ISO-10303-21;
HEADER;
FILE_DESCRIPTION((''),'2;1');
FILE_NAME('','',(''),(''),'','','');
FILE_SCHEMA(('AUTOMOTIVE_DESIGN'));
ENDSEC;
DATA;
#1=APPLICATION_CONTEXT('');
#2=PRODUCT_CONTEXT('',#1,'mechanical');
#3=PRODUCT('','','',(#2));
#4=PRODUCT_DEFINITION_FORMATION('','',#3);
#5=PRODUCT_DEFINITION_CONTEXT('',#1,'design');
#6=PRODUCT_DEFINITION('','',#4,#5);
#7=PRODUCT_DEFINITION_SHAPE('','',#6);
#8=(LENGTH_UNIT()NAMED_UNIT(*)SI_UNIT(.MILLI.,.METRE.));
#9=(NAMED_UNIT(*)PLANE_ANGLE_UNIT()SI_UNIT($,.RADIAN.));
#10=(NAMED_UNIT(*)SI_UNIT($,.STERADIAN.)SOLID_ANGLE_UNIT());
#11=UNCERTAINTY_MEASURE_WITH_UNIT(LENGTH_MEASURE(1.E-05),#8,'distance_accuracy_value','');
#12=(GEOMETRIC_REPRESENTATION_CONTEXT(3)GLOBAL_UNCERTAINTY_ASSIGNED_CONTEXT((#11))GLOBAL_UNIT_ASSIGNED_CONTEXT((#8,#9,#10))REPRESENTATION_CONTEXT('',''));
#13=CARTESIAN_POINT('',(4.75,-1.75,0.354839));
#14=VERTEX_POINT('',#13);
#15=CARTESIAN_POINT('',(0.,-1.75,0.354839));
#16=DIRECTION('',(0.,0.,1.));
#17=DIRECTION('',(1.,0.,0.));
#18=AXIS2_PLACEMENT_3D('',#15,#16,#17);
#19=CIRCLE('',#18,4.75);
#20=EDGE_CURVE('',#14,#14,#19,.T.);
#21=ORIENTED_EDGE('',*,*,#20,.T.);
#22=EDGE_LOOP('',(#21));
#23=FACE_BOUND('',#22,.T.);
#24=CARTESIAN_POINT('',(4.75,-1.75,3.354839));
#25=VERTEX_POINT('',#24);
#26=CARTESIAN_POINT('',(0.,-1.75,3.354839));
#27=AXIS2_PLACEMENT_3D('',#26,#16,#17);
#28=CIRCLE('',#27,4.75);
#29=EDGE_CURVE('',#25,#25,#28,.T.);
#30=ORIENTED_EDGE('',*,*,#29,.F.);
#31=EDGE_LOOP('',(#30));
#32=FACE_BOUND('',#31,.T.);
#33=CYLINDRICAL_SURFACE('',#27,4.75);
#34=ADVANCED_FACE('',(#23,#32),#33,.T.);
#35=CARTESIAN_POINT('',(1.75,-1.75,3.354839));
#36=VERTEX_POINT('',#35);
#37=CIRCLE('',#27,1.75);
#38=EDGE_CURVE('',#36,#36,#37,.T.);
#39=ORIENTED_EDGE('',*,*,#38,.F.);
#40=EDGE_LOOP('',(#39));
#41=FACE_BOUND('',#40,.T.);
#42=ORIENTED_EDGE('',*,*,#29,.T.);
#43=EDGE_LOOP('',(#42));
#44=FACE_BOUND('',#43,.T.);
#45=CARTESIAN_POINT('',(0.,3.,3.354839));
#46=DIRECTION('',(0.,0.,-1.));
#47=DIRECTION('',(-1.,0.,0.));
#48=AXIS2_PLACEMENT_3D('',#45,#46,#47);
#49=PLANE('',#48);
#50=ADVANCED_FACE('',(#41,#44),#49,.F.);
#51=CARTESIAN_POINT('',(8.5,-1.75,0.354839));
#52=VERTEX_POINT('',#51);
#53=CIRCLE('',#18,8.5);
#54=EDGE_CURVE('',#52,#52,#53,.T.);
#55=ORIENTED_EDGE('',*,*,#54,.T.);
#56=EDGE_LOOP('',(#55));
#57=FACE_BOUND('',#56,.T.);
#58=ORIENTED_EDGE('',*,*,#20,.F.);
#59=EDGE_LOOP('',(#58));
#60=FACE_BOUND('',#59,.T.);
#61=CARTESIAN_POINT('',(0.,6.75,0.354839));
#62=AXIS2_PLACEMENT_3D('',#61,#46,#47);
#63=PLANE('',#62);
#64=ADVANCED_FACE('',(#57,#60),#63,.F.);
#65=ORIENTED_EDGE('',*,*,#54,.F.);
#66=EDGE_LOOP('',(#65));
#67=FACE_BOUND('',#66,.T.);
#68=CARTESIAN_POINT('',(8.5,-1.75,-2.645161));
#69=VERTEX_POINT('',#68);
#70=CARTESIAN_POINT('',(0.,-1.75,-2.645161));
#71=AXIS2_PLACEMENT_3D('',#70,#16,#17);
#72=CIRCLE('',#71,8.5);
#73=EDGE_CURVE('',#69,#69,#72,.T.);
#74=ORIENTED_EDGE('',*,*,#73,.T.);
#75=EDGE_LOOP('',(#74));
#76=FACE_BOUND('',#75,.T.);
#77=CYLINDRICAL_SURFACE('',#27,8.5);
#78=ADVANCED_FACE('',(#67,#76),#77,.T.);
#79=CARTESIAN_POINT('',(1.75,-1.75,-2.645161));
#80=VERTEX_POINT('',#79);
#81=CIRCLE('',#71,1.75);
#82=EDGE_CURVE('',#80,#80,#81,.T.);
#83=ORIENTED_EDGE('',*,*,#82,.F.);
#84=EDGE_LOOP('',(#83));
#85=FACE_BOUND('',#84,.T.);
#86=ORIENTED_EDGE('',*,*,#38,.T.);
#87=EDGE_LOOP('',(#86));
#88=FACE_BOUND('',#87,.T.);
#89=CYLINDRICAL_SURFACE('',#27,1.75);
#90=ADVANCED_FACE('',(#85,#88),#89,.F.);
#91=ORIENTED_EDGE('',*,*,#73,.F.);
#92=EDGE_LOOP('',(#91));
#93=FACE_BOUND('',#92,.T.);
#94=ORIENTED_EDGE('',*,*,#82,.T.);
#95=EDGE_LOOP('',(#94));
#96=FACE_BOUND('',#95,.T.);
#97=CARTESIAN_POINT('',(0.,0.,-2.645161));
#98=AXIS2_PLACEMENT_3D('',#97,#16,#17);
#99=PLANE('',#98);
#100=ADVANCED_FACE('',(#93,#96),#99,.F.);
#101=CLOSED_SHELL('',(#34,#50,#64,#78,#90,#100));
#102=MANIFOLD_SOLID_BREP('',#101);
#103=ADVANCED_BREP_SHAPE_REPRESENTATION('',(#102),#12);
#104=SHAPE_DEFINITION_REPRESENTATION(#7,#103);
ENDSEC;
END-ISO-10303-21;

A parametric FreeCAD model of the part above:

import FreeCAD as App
import Part
import Sketcher
from FreeCAD import Vector
Q = App.Units.Quantity

doc = App.newDocument("Part")
body = doc.addObject("PartDesign::Body", "Body")

sketch1 = doc.addObject("Sketcher::SketchObject", "Sketch")
body.addObject(sketch1)
sketch1.AttachmentSupport = (doc.YZ_Plane, [""])
sketch1.MapMode = "FlatFace"
sketch1.addGeometry([
    Part.LineSegment(Vector(0, 3.354839, 0), Vector(0, -2.645161, 0)),
    Part.LineSegment(Vector(0, -2.645161, 0), Vector(6.75, -2.645161, 0)),
    Part.LineSegment(Vector(6.75, -2.645161, 0), Vector(6.75, 0.354839, 0)),
    Part.LineSegment(Vector(6.75, 0.354839, 0), Vector(3, 0.354839, 0)),
    Part.LineSegment(Vector(3, 0.354839, 0), Vector(3, 3.354839, 0)),
    Part.LineSegment(Vector(3, 3.354839, 0), Vector(0, 3.354839, 0)),
], False)
sketch1.addGeometry(Part.LineSegment(Vector(-1.75, 3.354839, 0), Vector(-1.75, -2.645161, 0)), True)
sketch1.addConstraint([
    Sketcher.Constraint("Coincident", 0, 2, 1, 1),
    Sketcher.Constraint("Coincident", 1, 2, 2, 1),
    Sketcher.Constraint("Coincident", 2, 2, 3, 1),
    Sketcher.Constraint("Coincident", 3, 2, 4, 1),
    Sketcher.Constraint("Coincident", 4, 2, 5, 1),
    Sketcher.Constraint("Coincident", 5, 2, 0, 1),
    Sketcher.Constraint("Vertical", 0),
    Sketcher.Constraint("Horizontal", 1),
    Sketcher.Constraint("Vertical", 2),
    Sketcher.Constraint("Horizontal", 3),
    Sketcher.Constraint("Vertical", 4),
    Sketcher.Constraint("Horizontal", 5),
    Sketcher.Constraint("Vertical", 6),
    Sketcher.Constraint("PointOnObject", 0, 2, -2),
    Sketcher.Constraint("Horizontal", 5, 2, 6, 1),
    Sketcher.Constraint("Horizontal", 1, 2, 6, 2),
    Sketcher.Constraint("Equal", 5, 2),
    Sketcher.Constraint("Equal", 2, 4),
    Sketcher.Constraint("DistanceX", 5, 2, 5, 1, Q("3 mm")),
    Sketcher.Constraint("DistanceX", 1, 1, 1, 2, Q("6.75 mm")),
    Sketcher.Constraint("DistanceX", 6, 1, 2, 2, Q("8.5 mm")),
    Sketcher.Constraint("DistanceY", 0, 2, -1, 1, Q("2.645161 mm")),
])
revolution = doc.addObject("PartDesign::Revolution", "Revolution")
body.addObject(revolution)
revolution.Profile = sketch1
revolution.ReferenceAxis = (sketch1, ["Axis0"])
revolution.Angle = 360

doc.recompute()
